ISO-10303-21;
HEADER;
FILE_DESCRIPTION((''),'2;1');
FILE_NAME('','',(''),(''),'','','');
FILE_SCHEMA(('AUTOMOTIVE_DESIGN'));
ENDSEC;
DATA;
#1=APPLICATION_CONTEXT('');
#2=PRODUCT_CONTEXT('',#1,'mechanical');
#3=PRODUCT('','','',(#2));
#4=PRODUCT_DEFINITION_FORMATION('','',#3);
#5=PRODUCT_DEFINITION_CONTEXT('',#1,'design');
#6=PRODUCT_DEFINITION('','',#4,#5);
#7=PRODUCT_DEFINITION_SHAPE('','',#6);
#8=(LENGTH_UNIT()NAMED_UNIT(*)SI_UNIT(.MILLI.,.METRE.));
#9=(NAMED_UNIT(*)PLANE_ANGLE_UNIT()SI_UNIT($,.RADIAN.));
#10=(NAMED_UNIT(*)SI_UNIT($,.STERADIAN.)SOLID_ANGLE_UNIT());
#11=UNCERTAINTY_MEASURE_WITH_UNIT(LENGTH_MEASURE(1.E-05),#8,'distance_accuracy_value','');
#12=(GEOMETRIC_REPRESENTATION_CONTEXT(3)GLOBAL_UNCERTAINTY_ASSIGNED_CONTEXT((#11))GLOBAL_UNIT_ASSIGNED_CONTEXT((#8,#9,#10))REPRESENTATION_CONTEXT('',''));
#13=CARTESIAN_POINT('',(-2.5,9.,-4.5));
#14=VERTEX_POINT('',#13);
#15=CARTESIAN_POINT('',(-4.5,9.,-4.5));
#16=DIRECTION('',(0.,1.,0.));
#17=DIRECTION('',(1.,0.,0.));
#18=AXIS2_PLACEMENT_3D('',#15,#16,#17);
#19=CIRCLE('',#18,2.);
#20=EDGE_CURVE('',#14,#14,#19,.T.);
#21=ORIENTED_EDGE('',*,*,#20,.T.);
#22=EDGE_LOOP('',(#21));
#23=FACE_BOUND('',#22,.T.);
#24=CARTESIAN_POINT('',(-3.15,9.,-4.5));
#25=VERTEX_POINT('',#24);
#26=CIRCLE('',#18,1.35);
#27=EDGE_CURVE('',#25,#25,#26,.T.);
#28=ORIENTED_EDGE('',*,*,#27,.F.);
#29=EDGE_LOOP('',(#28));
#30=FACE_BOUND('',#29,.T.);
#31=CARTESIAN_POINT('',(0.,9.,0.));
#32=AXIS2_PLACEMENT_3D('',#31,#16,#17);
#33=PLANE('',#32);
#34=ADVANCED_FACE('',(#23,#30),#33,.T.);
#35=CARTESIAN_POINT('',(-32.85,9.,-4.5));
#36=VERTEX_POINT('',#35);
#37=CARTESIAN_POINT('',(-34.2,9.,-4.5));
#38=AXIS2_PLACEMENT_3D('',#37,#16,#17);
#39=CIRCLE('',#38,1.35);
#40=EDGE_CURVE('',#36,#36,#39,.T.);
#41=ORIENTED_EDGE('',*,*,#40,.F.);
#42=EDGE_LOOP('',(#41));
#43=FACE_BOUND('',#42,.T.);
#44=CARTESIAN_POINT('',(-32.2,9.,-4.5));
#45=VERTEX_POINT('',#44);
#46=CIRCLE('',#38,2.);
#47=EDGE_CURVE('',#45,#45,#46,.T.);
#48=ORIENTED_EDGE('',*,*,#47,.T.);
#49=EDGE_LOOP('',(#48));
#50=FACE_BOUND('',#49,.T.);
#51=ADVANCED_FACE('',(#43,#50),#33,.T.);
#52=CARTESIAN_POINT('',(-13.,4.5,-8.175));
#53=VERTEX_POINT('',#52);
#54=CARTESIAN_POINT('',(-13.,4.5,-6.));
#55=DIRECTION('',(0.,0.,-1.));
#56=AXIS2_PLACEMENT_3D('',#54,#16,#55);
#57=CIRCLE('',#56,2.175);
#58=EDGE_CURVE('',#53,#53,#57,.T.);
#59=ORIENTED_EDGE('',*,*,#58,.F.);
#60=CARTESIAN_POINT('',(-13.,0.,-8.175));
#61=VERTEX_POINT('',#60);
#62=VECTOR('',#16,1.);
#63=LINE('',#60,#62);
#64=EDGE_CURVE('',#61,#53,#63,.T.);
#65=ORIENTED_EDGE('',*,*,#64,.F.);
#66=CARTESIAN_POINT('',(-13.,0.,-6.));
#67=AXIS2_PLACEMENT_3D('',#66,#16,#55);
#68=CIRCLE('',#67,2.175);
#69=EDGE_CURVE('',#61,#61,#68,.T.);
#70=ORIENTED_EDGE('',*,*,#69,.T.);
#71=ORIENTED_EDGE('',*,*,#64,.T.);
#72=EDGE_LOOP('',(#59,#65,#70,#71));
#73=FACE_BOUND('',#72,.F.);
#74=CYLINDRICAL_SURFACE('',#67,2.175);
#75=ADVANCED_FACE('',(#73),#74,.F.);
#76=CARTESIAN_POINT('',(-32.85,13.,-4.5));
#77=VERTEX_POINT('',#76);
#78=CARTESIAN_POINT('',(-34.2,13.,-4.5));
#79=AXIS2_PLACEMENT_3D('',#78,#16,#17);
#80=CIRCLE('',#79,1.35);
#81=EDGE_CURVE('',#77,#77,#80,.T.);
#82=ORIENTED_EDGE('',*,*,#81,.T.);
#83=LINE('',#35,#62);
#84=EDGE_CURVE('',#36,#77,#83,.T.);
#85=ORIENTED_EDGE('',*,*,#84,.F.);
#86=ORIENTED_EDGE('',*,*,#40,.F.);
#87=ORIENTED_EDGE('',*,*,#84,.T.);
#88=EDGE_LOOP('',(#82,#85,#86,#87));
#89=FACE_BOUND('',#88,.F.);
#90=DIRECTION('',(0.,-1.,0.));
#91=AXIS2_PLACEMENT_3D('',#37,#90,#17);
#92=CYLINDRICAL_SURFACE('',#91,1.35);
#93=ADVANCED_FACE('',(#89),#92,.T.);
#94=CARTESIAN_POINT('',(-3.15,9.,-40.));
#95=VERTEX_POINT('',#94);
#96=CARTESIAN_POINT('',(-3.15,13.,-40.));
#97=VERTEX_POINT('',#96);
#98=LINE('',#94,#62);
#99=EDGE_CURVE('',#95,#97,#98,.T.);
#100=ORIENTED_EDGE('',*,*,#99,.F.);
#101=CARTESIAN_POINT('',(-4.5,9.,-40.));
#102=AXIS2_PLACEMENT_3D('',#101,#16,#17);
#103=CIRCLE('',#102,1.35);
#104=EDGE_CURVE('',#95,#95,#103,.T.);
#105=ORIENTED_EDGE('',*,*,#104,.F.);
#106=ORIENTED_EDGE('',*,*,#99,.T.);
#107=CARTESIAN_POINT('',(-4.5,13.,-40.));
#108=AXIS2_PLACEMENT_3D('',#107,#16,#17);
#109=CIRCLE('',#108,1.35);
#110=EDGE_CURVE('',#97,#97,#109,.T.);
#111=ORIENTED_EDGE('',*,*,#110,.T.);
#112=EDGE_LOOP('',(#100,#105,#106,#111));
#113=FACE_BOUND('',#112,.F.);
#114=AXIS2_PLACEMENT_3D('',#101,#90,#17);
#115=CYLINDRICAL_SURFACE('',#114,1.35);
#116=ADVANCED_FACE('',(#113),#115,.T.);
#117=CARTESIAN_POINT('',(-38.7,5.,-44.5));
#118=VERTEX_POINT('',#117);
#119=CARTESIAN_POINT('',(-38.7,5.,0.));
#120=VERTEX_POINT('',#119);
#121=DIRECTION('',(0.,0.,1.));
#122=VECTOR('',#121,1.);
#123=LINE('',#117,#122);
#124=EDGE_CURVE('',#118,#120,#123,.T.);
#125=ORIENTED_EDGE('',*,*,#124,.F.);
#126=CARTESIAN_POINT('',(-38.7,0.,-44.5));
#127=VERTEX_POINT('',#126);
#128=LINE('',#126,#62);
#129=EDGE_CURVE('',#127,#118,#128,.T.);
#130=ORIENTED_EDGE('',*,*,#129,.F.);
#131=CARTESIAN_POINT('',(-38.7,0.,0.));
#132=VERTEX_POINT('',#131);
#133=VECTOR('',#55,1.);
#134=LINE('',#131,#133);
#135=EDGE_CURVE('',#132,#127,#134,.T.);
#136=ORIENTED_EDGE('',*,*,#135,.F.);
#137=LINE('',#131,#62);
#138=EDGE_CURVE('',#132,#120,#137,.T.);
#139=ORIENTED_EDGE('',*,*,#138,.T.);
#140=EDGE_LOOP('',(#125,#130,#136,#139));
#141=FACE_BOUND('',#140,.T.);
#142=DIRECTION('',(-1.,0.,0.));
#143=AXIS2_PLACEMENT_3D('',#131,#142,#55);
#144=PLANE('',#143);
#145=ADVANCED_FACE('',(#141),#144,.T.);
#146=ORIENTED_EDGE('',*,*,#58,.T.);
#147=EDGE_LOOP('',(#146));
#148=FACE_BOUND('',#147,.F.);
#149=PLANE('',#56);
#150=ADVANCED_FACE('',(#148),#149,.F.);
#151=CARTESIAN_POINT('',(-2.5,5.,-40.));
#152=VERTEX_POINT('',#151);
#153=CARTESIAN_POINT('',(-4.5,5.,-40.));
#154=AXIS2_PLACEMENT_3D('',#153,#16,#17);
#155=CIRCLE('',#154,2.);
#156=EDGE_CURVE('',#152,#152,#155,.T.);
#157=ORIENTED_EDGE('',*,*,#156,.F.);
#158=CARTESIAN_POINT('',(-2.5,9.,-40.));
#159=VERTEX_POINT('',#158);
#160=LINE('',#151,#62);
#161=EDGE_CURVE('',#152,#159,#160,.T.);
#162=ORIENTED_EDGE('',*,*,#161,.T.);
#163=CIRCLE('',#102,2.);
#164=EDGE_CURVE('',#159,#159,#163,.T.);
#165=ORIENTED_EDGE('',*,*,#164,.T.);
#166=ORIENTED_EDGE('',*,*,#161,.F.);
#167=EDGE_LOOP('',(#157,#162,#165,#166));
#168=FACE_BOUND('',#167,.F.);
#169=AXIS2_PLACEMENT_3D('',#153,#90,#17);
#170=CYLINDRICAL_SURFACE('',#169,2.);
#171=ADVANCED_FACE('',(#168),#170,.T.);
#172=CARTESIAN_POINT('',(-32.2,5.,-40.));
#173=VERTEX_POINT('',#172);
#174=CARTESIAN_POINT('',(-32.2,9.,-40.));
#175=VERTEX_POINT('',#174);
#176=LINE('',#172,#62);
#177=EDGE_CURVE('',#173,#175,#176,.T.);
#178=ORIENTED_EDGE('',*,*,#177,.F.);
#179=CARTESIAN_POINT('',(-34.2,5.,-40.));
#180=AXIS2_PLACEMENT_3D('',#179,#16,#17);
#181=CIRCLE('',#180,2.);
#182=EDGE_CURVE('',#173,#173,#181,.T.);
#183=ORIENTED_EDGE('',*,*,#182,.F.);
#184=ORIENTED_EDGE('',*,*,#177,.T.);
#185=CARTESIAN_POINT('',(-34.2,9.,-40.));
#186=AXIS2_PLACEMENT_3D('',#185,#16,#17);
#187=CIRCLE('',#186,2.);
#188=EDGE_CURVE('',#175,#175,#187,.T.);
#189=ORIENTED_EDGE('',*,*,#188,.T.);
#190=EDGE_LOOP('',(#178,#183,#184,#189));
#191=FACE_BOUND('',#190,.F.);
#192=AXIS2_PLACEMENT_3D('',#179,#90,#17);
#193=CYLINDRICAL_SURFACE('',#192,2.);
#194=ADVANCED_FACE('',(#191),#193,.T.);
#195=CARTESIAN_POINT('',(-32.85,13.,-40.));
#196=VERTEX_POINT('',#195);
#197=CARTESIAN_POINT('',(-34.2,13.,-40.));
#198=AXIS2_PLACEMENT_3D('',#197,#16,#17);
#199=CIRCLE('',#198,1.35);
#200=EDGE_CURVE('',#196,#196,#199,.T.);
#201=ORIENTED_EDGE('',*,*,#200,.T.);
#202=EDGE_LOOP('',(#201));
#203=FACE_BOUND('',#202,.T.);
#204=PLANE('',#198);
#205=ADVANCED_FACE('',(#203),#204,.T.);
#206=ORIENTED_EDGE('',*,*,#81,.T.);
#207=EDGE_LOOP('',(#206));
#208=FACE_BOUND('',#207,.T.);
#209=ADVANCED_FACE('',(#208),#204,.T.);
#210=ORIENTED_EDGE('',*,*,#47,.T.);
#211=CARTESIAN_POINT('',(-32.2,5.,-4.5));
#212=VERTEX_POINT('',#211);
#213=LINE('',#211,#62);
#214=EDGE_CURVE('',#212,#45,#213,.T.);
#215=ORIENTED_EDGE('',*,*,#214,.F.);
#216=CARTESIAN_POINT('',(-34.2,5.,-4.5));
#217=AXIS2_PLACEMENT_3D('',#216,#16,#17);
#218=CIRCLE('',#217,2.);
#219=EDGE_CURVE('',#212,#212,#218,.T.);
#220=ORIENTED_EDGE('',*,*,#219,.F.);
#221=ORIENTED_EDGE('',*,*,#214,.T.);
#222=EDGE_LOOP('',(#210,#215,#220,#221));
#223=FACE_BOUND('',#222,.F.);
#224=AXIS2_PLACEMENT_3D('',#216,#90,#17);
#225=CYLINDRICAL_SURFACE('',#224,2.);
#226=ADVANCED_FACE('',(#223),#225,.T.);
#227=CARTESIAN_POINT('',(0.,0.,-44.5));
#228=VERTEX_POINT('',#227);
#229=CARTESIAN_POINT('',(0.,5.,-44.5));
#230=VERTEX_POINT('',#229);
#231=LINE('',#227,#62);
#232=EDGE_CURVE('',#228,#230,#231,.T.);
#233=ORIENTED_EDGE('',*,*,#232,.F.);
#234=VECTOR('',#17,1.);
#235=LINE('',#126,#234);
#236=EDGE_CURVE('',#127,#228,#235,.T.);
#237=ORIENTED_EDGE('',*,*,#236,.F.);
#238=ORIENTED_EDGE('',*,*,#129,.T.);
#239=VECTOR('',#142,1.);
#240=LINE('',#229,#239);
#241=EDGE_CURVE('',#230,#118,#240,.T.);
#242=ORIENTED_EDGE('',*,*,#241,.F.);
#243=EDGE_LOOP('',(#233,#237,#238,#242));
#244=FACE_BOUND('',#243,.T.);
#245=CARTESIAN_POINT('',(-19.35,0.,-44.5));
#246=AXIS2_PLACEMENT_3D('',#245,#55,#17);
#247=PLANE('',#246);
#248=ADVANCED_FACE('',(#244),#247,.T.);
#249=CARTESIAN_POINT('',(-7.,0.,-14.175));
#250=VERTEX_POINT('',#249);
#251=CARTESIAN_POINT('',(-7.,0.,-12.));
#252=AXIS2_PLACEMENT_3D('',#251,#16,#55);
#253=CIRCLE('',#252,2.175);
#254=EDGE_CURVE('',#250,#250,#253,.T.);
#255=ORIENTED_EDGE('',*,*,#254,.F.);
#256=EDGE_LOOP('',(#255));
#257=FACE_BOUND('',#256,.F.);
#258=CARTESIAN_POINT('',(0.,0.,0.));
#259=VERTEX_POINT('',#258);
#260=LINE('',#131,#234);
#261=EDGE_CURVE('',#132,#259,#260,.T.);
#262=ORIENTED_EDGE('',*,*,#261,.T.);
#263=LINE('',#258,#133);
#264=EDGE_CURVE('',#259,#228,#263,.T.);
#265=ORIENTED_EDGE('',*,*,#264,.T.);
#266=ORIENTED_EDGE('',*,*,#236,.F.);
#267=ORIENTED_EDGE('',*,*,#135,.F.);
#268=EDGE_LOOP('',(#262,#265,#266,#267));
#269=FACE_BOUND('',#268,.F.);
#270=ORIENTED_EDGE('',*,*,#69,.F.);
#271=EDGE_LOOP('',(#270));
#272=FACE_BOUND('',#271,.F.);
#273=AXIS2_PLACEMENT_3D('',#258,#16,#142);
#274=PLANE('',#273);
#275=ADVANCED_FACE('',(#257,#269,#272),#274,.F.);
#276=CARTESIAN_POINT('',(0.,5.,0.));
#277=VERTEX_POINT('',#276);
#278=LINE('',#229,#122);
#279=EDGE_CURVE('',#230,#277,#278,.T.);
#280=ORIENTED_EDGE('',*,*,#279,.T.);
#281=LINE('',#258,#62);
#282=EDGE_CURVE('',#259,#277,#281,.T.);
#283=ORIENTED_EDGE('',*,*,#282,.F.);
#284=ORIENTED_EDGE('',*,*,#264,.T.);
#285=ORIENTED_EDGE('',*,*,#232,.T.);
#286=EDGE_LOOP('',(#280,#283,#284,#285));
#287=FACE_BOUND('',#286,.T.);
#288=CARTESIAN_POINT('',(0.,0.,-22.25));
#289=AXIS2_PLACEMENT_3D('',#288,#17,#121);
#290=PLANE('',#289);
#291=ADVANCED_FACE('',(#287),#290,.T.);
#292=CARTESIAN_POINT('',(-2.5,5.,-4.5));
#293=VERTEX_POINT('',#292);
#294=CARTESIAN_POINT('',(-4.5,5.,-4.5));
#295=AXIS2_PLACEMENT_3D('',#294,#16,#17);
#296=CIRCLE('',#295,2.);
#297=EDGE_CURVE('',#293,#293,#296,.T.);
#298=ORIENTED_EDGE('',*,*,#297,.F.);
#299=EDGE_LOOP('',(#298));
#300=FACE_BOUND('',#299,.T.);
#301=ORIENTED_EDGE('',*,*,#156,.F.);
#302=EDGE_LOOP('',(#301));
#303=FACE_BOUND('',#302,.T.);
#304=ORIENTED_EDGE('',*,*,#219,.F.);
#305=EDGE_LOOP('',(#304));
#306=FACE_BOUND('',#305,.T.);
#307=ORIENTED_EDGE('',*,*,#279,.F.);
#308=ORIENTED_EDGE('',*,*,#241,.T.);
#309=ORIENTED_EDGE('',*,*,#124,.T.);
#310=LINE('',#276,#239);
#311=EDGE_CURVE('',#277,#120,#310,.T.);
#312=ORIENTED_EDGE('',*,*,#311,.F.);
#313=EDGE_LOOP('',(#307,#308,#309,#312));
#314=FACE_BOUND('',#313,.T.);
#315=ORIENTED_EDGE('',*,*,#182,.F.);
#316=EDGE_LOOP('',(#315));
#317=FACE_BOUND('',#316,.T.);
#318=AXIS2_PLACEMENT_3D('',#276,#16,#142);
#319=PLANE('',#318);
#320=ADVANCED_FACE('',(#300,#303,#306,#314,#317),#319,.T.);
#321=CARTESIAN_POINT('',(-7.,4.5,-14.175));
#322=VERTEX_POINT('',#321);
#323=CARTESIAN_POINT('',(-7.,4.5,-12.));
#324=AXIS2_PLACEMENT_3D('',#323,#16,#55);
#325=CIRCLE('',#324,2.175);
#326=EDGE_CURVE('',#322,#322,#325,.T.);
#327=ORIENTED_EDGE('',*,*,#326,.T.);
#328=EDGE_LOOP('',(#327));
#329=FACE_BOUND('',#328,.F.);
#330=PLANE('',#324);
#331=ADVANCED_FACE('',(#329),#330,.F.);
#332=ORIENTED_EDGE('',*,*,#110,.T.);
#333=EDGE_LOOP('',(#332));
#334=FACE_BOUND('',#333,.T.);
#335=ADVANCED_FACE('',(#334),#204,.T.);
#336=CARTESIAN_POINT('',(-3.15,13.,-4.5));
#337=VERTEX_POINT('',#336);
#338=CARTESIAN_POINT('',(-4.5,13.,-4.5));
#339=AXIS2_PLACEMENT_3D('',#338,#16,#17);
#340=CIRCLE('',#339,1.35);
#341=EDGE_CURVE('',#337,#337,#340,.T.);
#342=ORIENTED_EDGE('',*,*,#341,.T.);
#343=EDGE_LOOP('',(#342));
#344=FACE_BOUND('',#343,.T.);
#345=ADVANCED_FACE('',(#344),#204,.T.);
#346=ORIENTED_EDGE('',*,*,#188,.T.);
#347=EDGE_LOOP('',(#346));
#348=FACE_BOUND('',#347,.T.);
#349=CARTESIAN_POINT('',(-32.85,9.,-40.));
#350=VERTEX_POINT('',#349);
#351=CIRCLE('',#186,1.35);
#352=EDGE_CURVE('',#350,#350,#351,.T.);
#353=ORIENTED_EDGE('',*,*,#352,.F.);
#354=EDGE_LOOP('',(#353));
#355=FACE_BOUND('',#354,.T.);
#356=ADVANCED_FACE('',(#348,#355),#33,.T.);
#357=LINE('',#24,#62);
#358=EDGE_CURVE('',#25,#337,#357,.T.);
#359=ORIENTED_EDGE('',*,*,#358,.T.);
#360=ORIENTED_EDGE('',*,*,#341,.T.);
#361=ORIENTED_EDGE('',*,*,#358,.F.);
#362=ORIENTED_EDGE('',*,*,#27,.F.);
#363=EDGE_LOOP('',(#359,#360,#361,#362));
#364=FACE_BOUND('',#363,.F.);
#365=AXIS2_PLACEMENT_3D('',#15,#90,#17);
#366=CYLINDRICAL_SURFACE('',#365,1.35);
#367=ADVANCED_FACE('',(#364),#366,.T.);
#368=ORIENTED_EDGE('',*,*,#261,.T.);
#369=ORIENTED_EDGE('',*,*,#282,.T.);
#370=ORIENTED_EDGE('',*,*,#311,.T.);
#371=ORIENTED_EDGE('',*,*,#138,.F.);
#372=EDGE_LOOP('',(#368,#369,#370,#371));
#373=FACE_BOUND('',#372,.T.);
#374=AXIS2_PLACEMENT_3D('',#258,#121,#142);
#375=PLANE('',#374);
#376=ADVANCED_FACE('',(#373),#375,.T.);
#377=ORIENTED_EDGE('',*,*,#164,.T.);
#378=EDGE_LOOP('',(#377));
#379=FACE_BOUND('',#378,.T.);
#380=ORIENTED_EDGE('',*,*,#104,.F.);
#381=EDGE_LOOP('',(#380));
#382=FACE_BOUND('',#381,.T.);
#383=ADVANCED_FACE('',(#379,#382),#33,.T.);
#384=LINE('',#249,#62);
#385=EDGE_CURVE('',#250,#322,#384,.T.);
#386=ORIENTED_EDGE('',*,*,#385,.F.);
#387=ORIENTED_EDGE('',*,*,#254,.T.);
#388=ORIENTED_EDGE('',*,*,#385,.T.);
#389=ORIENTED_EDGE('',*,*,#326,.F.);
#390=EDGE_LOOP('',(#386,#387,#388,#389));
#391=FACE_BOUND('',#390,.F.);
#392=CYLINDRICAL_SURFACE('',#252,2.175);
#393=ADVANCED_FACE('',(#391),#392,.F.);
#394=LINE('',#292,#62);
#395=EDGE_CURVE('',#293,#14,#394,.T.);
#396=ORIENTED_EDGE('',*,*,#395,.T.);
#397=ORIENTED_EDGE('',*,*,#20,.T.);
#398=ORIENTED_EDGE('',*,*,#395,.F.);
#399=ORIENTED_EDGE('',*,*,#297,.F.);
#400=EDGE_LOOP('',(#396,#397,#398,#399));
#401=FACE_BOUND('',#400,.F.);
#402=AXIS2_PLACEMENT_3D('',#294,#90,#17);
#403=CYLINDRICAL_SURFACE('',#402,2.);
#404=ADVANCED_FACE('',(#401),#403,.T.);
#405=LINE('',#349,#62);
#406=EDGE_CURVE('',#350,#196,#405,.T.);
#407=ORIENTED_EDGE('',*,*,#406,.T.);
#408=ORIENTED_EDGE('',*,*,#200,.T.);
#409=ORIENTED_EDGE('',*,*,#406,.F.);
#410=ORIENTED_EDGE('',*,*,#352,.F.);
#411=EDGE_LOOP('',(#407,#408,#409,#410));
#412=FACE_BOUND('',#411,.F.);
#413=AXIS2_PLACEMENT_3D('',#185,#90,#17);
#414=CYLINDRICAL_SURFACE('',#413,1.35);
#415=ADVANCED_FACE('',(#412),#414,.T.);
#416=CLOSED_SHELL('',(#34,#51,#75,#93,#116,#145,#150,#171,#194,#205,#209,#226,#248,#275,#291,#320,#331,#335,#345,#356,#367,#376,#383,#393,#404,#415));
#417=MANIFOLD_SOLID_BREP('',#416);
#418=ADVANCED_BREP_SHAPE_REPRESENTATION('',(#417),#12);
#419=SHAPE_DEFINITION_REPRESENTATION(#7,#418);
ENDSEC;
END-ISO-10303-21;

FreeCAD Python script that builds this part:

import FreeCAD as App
import Part
import Sketcher
from FreeCAD import Vector
Q = App.Units.Quantity


def add_polygon(sketch, points):
    """Adds a closed chain of lines whose ends are joined by coincident constraints."""
    first, n = sketch.GeometryCount, len(points)
    for a, b in zip(points, points[1:] + points[:1]):
        sketch.addGeometry(Part.LineSegment(App.Vector(*a, 0), App.Vector(*b, 0)), False)
    for i in range(n):
        sketch.addConstraint(Sketcher.Constraint("Coincident", first + i, 2, first + (i + 1) % n, 1))

doc = App.newDocument("Part")
body = doc.addObject("PartDesign::Body", "Body")

# Sketch on XZ plane
sketch1 = body.newObject("Sketcher::SketchObject", "Sketch")
sketch1.AttachmentSupport = (doc.getObject("XZ_Plane"), [""])
sketch1.MapMode = "FlatFace"
add_polygon(sketch1, [(0, 0), (0, -44), (-39, -44), (-39, 0)])  # lines 0-3
sketch1.addConstraint(Sketcher.Constraint("Vertical", 0))
sketch1.addConstraint(Sketcher.Constraint("Horizontal", 1))
sketch1.addConstraint(Sketcher.Constraint("Vertical", 2))
sketch1.addConstraint(Sketcher.Constraint("Horizontal", 3))
sketch1.addConstraint(Sketcher.Constraint("Coincident", 3, 2, -1, 1))
sketch1.addConstraint(Sketcher.Constraint("DistanceX", 1, 2, 1, 1, Q("38.7 mm")))
sketch1.addConstraint(Sketcher.Constraint("DistanceY", 0, 2, 0, 1, Q("44.5 mm")))
pad1 = body.newObject("PartDesign::Pad", "Pad")
pad1.Profile = sketch1
pad1.Length = 5
pad1.Reversed = True

# Sketch on XZ plane
sketch2 = body.newObject("Sketcher::SketchObject", "Sketch001")
sketch2.AttachmentSupport = (doc.getObject("XZ_Plane"), [""])
sketch2.MapMode = "FlatFace"
sketch2.AttachmentOffset = App.Placement(Vector(0, 0, -5), App.Rotation())
sketch2.addGeometry(Part.Circle(Vector(-34.2, -4.5, 0), Vector(0, 0, 1), 2), False)
sketch2.addGeometry(Part.Circle(Vector(-34.2, -40, 0), Vector(0, 0, 1), 2), False)
sketch2.addGeometry(Part.Circle(Vector(-4.5, -4.5, 0), Vector(0, 0, 1), 2), False)
sketch2.addGeometry(Part.Circle(Vector(-4.5, -40, 0), Vector(0, 0, 1), 2), False)
sketch2.addConstraint(Sketcher.Constraint("Equal", 0, 1))
sketch2.addConstraint(Sketcher.Constraint("Equal", 1, 2))
sketch2.addConstraint(Sketcher.Constraint("Equal", 2, 3))
sketch2.addConstraint(Sketcher.Constraint("Horizontal", 0, 3, 2, 3))
sketch2.addConstraint(Sketcher.Constraint("Horizontal", 1, 3, 3, 3))
sketch2.addConstraint(Sketcher.Constraint("Vertical", 0, 3, 1, 3))
sketch2.addConstraint(Sketcher.Constraint("Vertical", 2, 3, 3, 3))
sketch2.addConstraint(Sketcher.Constraint("Diameter", 0, Q("4 mm")))
sketch2.addConstraint(Sketcher.Constraint("DistanceY", 0, 3, -1, 1, Q("4.5 mm")))
sketch2.addConstraint(Sketcher.Constraint("DistanceX", 2, 3, -1, 1, Q("4.5 mm")))
sketch2.addConstraint(Sketcher.Constraint("DistanceY", 1, 3, -1, 1, Q("40 mm")))
sketch2.addConstraint(Sketcher.Constraint("DistanceX", 0, 3, -1, 1, Q("34.2 mm")))
pad2 = body.newObject("PartDesign::Pad", "Pad001")
pad2.Profile = sketch2
pad2.Length = 4
pad2.Reversed = True

# Sketch on XZ plane
sketch3 = body.newObject("Sketcher::SketchObject", "Sketch002")
sketch3.AttachmentSupport = (doc.getObject("XZ_Plane"), [""])
sketch3.MapMode = "FlatFace"
sketch3.AttachmentOffset = App.Placement(Vector(0, 0, -9), App.Rotation())
sketch3.addGeometry(Part.Circle(Vector(-34.2, -40, 0), Vector(0, 0, 1), 1.4), False)
sketch3.addGeometry(Part.Circle(Vector(-4.5, -40, 0), Vector(0, 0, 1), 1.4), False)
sketch3.addGeometry(Part.Circle(Vector(-4.5, -4.5, 0), Vector(0, 0, 1), 1.4), False)
sketch3.addGeometry(Part.Circle(Vector(-34.2, -4.5, 0), Vector(0, 0, 1), 1.4), False)
sketch3.addConstraint(Sketcher.Constraint("Equal", 0, 1))
sketch3.addConstraint(Sketcher.Constraint("Equal", 1, 2))
sketch3.addConstraint(Sketcher.Constraint("Equal", 2, 3))
sketch3.addConstraint(Sketcher.Constraint("Horizontal", 0, 3, 1, 3))
sketch3.addConstraint(Sketcher.Constraint("Horizontal", 2, 3, 3, 3))
sketch3.addConstraint(Sketcher.Constraint("Vertical", 1, 3, 2, 3))
sketch3.addConstraint(Sketcher.Constraint("Vertical", 0, 3, 3, 3))
sketch3.addConstraint(Sketcher.Constraint("Diameter", 0, Q("2.7 mm")))
sketch3.addConstraint(Sketcher.Constraint("DistanceY", 0, 3, -1, 1, Q("40 mm")))
sketch3.addConstraint(Sketcher.Constraint("DistanceX", 0, 3, -1, 1, Q("34.2 mm")))
sketch3.addConstraint(Sketcher.Constraint("DistanceX", 1, 3, -1, 1, Q("4.5 mm")))
sketch3.addConstraint(Sketcher.Constraint("DistanceY", 2, 3, -1, 1, Q("4.5 mm")))
pad3 = body.newObject("PartDesign::Pad", "Pad002")
pad3.Profile = sketch3
pad3.Length = 4
pad3.Reversed = True

# Sketch on XZ plane
sketch4 = body.newObject("Sketcher::SketchObject", "Sketch003")
sketch4.AttachmentSupport = (doc.getObject("XZ_Plane"), [""])
sketch4.MapMode = "FlatFace"
sketch4.addGeometry(Part.Circle(Vector(-13, -6, 0), Vector(0, 0, 1), 2.2), False)
sketch4.addGeometry(Part.Circle(Vector(-7, -12, 0), Vector(0, 0, 1), 2.2), False)
sketch4.addConstraint(Sketcher.Constraint("Equal", 0, 1))
sketch4.addConstraint(Sketcher.Constraint("Diameter", 0, Q("4.35 mm")))
sketch4.addConstraint(Sketcher.Constraint("DistanceX", 0, 3, -1, 1, Q("13 mm")))
sketch4.addConstraint(Sketcher.Constraint("DistanceY", 0, 3, -1, 1, Q("6 mm")))
sketch4.addConstraint(Sketcher.Constraint("DistanceX", 1, 3, -1, 1, Q("7 mm")))
sketch4.addConstraint(Sketcher.Constraint("DistanceY", 1, 3, -1, 1, Q("12 mm")))
doc.recompute()
hole = body.newObject("PartDesign::Hole", "Hole")
hole.Profile = sketch4
hole.ThreadType = "None"
hole.Diameter = 4.35
hole.DepthType = "Dimension"
hole.Depth = 4.5
hole.DrillPoint = "Flat"

doc.recompute()
